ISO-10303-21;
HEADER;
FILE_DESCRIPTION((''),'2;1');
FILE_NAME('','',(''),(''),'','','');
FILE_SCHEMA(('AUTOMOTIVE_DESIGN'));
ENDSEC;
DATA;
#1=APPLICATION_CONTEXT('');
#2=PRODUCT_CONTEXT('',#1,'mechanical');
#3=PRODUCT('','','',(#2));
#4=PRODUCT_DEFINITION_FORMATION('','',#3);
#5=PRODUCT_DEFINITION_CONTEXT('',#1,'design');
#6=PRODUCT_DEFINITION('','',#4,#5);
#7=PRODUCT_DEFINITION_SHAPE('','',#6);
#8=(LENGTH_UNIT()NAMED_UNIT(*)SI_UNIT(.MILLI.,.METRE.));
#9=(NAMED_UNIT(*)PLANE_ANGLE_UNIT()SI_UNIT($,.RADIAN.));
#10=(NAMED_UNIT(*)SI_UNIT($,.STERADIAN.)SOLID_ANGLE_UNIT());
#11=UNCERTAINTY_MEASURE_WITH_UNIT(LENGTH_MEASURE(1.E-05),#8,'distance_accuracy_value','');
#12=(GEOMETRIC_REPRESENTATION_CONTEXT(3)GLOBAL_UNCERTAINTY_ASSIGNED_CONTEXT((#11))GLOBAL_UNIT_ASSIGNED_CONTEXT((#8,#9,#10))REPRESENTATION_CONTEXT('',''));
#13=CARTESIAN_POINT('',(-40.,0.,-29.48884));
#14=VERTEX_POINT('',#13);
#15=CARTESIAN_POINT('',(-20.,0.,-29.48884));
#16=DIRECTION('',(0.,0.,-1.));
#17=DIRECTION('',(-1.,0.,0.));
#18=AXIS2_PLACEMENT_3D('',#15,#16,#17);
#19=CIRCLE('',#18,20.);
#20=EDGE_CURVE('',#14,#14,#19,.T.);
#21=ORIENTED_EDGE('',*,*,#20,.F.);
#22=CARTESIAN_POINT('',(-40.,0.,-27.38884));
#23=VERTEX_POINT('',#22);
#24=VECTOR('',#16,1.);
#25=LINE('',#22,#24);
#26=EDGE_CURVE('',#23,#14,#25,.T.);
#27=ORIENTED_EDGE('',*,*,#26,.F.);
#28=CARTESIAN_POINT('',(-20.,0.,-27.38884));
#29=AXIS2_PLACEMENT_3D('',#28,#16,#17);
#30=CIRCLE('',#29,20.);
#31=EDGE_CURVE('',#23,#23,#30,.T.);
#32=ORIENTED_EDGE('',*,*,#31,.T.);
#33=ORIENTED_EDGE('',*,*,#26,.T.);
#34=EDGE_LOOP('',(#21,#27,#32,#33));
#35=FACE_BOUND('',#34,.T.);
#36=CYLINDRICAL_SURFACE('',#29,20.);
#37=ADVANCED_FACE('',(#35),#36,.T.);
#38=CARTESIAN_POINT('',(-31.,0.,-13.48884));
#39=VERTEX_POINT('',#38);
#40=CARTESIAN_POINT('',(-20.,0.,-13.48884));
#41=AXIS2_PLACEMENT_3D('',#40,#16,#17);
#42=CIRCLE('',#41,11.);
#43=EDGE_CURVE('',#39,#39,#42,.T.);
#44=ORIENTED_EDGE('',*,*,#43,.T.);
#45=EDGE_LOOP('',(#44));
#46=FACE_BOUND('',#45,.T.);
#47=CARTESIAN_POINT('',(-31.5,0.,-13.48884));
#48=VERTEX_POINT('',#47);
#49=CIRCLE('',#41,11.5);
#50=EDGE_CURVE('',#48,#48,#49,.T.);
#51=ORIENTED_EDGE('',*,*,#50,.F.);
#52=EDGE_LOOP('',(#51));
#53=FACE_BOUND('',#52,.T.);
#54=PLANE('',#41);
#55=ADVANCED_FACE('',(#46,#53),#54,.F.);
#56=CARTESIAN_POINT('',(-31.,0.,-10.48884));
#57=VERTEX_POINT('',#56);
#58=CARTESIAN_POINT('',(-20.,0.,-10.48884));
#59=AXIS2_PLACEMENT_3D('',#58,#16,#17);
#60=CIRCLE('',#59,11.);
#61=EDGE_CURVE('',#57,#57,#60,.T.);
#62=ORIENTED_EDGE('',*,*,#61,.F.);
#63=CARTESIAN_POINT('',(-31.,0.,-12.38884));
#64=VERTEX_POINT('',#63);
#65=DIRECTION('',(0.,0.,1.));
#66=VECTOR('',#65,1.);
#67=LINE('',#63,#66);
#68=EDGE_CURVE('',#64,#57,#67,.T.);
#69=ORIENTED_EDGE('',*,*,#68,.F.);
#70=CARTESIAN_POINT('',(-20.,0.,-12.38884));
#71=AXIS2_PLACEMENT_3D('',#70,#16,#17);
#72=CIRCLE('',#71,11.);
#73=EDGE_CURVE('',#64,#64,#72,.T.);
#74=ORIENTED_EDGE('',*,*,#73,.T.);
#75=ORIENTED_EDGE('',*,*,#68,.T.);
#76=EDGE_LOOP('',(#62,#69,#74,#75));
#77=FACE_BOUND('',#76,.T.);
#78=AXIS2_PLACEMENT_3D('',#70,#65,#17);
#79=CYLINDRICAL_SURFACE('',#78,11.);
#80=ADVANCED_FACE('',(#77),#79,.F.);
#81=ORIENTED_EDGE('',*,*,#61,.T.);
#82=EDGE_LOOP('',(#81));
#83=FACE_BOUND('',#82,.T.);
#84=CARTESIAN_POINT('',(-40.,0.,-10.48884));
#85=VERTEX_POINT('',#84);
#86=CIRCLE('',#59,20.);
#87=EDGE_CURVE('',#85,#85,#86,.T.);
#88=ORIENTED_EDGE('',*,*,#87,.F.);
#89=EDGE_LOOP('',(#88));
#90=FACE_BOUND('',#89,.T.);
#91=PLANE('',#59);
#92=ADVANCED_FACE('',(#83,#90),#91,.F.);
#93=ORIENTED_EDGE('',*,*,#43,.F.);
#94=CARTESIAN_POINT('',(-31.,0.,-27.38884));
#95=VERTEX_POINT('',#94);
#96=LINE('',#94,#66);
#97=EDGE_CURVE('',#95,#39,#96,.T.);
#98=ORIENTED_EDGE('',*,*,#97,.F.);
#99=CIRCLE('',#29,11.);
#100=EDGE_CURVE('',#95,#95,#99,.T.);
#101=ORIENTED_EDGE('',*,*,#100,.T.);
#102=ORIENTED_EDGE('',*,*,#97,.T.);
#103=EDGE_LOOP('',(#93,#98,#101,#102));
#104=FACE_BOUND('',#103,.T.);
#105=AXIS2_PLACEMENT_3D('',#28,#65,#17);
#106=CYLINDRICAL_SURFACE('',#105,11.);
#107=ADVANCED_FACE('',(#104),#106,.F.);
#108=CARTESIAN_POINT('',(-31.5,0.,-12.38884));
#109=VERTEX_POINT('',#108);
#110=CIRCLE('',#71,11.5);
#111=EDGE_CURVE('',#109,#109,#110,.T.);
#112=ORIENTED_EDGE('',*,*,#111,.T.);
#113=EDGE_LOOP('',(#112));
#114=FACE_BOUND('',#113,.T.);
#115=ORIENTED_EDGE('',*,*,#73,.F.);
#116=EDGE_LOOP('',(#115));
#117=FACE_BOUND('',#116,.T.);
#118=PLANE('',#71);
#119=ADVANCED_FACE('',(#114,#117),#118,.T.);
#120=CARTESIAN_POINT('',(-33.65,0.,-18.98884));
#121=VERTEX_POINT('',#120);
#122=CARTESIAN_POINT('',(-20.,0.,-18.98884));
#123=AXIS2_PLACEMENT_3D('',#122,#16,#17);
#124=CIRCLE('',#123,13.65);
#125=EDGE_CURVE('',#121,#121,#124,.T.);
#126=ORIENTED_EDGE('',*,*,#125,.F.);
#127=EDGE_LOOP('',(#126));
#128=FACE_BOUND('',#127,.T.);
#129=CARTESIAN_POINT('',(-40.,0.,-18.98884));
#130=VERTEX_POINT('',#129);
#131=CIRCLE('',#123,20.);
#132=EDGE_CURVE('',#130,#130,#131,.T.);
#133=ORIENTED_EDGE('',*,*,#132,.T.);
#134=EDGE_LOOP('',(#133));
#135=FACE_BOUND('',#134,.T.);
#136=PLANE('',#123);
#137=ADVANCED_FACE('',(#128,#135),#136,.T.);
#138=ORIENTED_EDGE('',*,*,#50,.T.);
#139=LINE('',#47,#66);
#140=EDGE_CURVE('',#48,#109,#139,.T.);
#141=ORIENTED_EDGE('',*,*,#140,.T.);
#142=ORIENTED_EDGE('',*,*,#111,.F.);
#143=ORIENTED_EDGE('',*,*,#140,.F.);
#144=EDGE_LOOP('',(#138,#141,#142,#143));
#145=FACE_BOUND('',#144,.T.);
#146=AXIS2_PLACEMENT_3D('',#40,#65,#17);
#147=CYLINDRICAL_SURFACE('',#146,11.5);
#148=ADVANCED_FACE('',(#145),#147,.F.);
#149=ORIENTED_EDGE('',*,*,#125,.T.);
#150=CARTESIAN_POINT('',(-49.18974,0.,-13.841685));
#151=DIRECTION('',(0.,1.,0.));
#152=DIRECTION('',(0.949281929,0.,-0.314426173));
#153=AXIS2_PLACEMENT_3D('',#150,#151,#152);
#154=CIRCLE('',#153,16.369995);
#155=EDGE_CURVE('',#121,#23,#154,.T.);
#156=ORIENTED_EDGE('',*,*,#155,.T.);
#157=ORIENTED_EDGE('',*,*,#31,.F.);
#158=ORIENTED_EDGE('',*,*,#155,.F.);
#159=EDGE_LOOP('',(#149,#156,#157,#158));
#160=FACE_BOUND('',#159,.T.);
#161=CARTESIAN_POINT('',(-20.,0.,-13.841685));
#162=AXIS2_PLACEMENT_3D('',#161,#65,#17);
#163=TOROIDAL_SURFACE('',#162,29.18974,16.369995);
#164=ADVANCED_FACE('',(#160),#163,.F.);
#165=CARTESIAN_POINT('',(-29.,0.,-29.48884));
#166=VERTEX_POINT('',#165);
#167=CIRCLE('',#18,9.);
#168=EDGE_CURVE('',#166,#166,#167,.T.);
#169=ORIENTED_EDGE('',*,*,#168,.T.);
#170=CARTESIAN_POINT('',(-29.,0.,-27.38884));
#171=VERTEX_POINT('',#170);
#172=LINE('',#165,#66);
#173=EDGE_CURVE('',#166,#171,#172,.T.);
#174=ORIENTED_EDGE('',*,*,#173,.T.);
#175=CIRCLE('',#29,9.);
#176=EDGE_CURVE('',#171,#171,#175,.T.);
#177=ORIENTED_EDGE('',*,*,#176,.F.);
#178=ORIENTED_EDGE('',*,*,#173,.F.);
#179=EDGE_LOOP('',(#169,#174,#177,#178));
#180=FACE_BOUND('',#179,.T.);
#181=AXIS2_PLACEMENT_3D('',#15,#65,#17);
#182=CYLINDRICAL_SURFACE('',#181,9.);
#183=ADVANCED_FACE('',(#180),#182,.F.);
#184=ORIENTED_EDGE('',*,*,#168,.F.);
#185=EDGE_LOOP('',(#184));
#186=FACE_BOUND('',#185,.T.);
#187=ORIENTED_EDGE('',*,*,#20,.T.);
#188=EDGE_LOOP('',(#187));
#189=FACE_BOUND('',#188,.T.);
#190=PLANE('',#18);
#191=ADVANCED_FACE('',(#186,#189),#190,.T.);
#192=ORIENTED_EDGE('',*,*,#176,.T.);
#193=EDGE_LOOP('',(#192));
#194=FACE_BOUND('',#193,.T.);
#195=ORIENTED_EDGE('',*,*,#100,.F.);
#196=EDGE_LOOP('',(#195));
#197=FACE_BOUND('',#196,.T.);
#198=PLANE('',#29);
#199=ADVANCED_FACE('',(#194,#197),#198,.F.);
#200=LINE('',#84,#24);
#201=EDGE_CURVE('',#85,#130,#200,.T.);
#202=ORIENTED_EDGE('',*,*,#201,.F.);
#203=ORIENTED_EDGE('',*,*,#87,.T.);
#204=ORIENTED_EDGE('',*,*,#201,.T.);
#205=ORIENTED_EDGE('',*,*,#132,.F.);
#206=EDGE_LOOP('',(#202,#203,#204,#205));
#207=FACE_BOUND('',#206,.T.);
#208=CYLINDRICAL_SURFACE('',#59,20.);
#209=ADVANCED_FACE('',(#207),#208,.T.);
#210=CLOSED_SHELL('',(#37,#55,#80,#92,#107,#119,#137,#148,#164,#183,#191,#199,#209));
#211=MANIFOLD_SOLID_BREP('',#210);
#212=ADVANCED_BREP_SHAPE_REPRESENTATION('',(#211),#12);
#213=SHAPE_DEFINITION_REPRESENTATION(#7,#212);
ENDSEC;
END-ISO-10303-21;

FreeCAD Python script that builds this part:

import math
import FreeCAD as App
import Part
import Sketcher
Q = App.Units.Quantity

doc = App.newDocument("Part")
body = doc.addObject("PartDesign::Body", "Body")

# Sketch on XZ plane
sketch1 = body.newObject("Sketcher::SketchObject", "Sketch")
sketch1.AttachmentSupport = (doc.getObject("XZ_Plane"), [""])
sketch1.MapMode = "FlatFace"
sketch1.addGeometry(Part.LineSegment(App.Vector(-31, -10.5, 0), App.Vector(-40, -10.5, 0)), False)
sketch1.addGeometry(Part.LineSegment(App.Vector(-40, -10.5, 0), App.Vector(-40, -19, 0)), False)
sketch1.addGeometry(Part.LineSegment(App.Vector(-40, -19, 0), App.Vector(-33.6, -19, 0)), False)
sketch1.addGeometry(Part.ArcOfCircle(Part.Circle(App.Vector(-49.2, -13.8, 0), App.Vector(0, 0, 1), 16.4), math.radians(-56), math.radians(-18)), False)
sketch1.addGeometry(Part.LineSegment(App.Vector(-40, -27.4, 0), App.Vector(-40, -29.5, 0)), False)
sketch1.addGeometry(Part.LineSegment(App.Vector(-40, -29.5, 0), App.Vector(-29, -29.5, 0)), False)
sketch1.addGeometry(Part.LineSegment(App.Vector(-29, -29.5, 0), App.Vector(-29, -27.4, 0)), False)
sketch1.addGeometry(Part.LineSegment(App.Vector(-29, -27.4, 0), App.Vector(-31, -27.4, 0)), False)
sketch1.addGeometry(Part.LineSegment(App.Vector(-31, -27.4, 0), App.Vector(-31, -13.5, 0)), False)
sketch1.addGeometry(Part.LineSegment(App.Vector(-31, -13.5, 0), App.Vector(-31.5, -13.5, 0)), False)
sketch1.addGeometry(Part.LineSegment(App.Vector(-31.5, -13.5, 0), App.Vector(-31.5, -12.4, 0)), False)
sketch1.addGeometry(Part.LineSegment(App.Vector(-31.5, -12.4, 0), App.Vector(-31, -12.4, 0)), False)
sketch1.addGeometry(Part.LineSegment(App.Vector(-31, -12.4, 0), App.Vector(-31, -10.5, 0)), False)
sketch1.addGeometry(Part.LineSegment(App.Vector(-20, -10.5, 0), App.Vector(-20, -29.5, 0)), True)  # axis
sketch1.addConstraint(Sketcher.Constraint("Coincident", 0, 2, 1, 1))
sketch1.addConstraint(Sketcher.Constraint("Coincident", 1, 2, 2, 1))
sketch1.addConstraint(Sketcher.Constraint("Coincident", 2, 2, 3, 2))
sketch1.addConstraint(Sketcher.Constraint("Coincident", 3, 1, 4, 1))
sketch1.addConstraint(Sketcher.Constraint("Coincident", 4, 2, 5, 1))
sketch1.addConstraint(Sketcher.Constraint("Coincident", 5, 2, 6, 1))
sketch1.addConstraint(Sketcher.Constraint("Coincident", 6, 2, 7, 1))
sketch1.addConstraint(Sketcher.Constraint("Coincident", 7, 2, 8, 1))
sketch1.addConstraint(Sketcher.Constraint("Coincident", 8, 2, 9, 1))
sketch1.addConstraint(Sketcher.Constraint("Coincident", 9, 2, 10, 1))
sketch1.addConstraint(Sketcher.Constraint("Coincident", 10, 2, 11, 1))
sketch1.addConstraint(Sketcher.Constraint("Coincident", 11, 2, 12, 1))
sketch1.addConstraint(Sketcher.Constraint("Coincident", 12, 2, 0, 1))
sketch1.addConstraint(Sketcher.Constraint("Horizontal", 0))
sketch1.addConstraint(Sketcher.Constraint("Vertical", 1))
sketch1.addConstraint(Sketcher.Constraint("Horizontal", 2))
sketch1.addConstraint(Sketcher.Constraint("Vertical", 4))
sketch1.addConstraint(Sketcher.Constraint("Horizontal", 5))
sketch1.addConstraint(Sketcher.Constraint("Vertical", 6))
sketch1.addConstraint(Sketcher.Constraint("Horizontal", 7))
sketch1.addConstraint(Sketcher.Constraint("Vertical", 8))
sketch1.addConstraint(Sketcher.Constraint("Horizontal", 9))
sketch1.addConstraint(Sketcher.Constraint("Vertical", 10))
sketch1.addConstraint(Sketcher.Constraint("Horizontal", 11))
sketch1.addConstraint(Sketcher.Constraint("Vertical", 12))
sketch1.addConstraint(Sketcher.Constraint("Vertical", 13))
sketch1.addConstraint(Sketcher.Constraint("Horizontal", 3, 1, 6, 2))
sketch1.addConstraint(Sketcher.Constraint("Horizontal", 12, 2, 13, 1))
sketch1.addConstraint(Sketcher.Constraint("Horizontal", 5, 2, 13, 2))
sketch1.addConstraint(Sketcher.Constraint("Vertical", 1, 2, 3, 1))
sketch1.addConstraint(Sketcher.Constraint("Vertical", 8, 2, 11, 2))
sketch1.addConstraint(Sketcher.Constraint("DistanceX", 0, 2, 0, 1, Q("9 mm")))
sketch1.addConstraint(Sketcher.Constraint("DistanceX", 5, 1, 5, 2, Q("11 mm")))
sketch1.addConstraint(Sketcher.Constraint("DistanceY", 13, 2, 13, 1, Q("19 mm")))
sketch1.addConstraint(Sketcher.Constraint("DistanceX", 9, 2, 9, 1, Q("0.5 mm")))
sketch1.addConstraint(Sketcher.Constraint("DistanceY", 1, 2, 1, 1, Q("8.5 mm")))
sketch1.addConstraint(Sketcher.Constraint("DistanceY", 4, 2, 4, 1, Q("2.1 mm")))
sketch1.addConstraint(Sketcher.Constraint("DistanceY", 8, 1, 8, 2, Q("13.9 mm")))
sketch1.addConstraint(Sketcher.Constraint("DistanceY", 10, 1, 10, 2, Q("1.1 mm")))
sketch1.addConstraint(Sketcher.Constraint("DistanceX", 0, 2, -1, 1, Q("40 mm")))
sketch1.addConstraint(Sketcher.Constraint("DistanceX", 13, 1, -1, 1, Q("20 mm")))
sketch1.addConstraint(Sketcher.Constraint("DistanceX", 2, 1, 2, 2, Q("6.35 mm")))
sketch1.addConstraint(Sketcher.Constraint("Radius", 3, Q("16.369995 mm")))
sketch1.addConstraint(Sketcher.Constraint("DistanceY", 0, 2, -1, 1, Q("10.48884 mm")))
revolution = body.newObject("PartDesign::Revolution", "Revolution")
revolution.Profile = sketch1
revolution.ReferenceAxis = (sketch1, ["Axis0"])
revolution.Angle = 360

doc.recompute()
